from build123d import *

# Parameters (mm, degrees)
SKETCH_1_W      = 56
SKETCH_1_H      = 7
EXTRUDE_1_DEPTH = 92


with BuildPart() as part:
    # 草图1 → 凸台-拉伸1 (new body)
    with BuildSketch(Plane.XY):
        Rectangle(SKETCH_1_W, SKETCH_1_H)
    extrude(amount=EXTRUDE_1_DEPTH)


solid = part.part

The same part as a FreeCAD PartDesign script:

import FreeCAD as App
import Part
import Sketcher
from FreeCAD import Vector


def add_polygon(sketch, points):
    """Adds a closed chain of lines whose ends are joined by coincident constraints."""
    first, n = sketch.GeometryCount, len(points)
    for a, b in zip(points, points[1:] + points[:1]):
        sketch.addGeometry(Part.LineSegment(App.Vector(*a, 0), App.Vector(*b, 0)), False)
    for i in range(n):
        sketch.addConstraint(Sketcher.Constraint("Coincident", first + i, 2, first + (i + 1) % n, 1))

doc = App.newDocument("Part")
body = doc.addObject("PartDesign::Body", "Body")

# Sketch on XY plane
sketch1 = doc.addObject("Sketcher::SketchObject", "Sketch")
body.addObject(sketch1)
sketch1.AttachmentSupport = (doc.XY_Plane, [""])
sketch1.MapMode = "FlatFace"
add_polygon(sketch1, [(-28, 4), (-28, -4), (28, -4), (28, 4)])  # lines 0-3
sketch1.addConstraint(Sketcher.Constraint("Vertical", 0))
sketch1.addConstraint(Sketcher.Constraint("Horizontal", 1))
sketch1.addConstraint(Sketcher.Constraint("Vertical", 2))
sketch1.addConstraint(Sketcher.Constraint("Horizontal", 3))
sketch1.addConstraint(Sketcher.Constraint("Symmetric", 0, 2, 2, 2, -1, 1))
sketch1.addConstraint(Sketcher.Constraint("DistanceX", 1, 1, 1, 2, 56.0))
sketch1.addConstraint(Sketcher.Constraint("DistanceY", 0, 2, 0, 1, 7.0))
pad1 = doc.addObject("PartDesign::Pad", "Pad")
body.addObject(pad1)
pad1.Profile = sketch1
pad1.Length = 92

doc.recompute()
